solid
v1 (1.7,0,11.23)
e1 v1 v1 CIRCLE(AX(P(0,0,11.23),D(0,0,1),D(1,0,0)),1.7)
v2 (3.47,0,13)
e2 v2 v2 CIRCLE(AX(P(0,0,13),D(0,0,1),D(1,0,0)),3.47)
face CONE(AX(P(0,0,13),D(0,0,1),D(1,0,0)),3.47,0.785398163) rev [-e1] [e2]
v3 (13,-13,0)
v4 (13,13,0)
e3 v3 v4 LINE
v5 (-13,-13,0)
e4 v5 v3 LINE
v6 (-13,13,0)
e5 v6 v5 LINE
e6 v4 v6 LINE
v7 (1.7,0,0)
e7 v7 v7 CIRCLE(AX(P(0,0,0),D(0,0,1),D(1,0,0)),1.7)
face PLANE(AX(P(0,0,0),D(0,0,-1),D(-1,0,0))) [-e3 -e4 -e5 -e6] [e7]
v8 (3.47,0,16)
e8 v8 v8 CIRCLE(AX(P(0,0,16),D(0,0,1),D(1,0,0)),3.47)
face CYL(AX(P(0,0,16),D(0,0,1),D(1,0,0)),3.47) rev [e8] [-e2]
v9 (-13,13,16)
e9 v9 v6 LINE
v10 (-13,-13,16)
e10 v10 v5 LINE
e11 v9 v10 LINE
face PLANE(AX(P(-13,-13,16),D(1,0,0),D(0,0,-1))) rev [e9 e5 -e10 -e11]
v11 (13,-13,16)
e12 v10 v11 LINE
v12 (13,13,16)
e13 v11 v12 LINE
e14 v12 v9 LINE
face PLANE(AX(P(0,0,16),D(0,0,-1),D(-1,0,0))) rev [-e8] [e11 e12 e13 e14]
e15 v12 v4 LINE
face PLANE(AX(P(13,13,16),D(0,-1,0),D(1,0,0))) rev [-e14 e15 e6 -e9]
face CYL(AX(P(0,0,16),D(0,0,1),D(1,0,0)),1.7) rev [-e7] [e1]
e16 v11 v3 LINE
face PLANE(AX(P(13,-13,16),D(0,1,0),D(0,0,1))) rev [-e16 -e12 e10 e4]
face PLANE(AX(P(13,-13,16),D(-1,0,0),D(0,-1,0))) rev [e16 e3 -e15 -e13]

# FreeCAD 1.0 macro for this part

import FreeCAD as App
import Part
import Sketcher

V = App.Vector
Q = App.Units.Quantity


def add_polygon(sketch, points):
    """Adds a closed chain of lines whose ends are joined by coincident constraints."""
    first, n = sketch.GeometryCount, len(points)
    for a, b in zip(points, points[1:] + points[:1]):
        sketch.addGeometry(Part.LineSegment(App.Vector(*a, 0), App.Vector(*b, 0)), False)
    for i in range(n):
        sketch.addConstraint(Sketcher.Constraint("Coincident", first + i, 2, first + (i + 1) % n, 1))

doc = App.newDocument("Part")
params = doc.addObject("Spreadsheet::Sheet", "Params")
for row, (alias, value) in enumerate([
    ("sketch1_width", "26 mm"),
    ("pad1_length", "16 mm"),
    ("sketch2_height", "16 mm"),
    ("sketch2_height2", "3 mm"),
    ("sketch2_width", "1.7 mm"),
    ("sketch2_width2", "3.47 mm"),
    ("groove_angle", "360 deg"),
], start=1):
    params.set(f"A{row}", alias)
    params.set(f"B{row}", "=" + value)
    params.setAlias(f"B{row}", alias)

body = doc.addObject("PartDesign::Body", "Body")

# Sketch on XY plane
sketch1 = body.newObject("Sketcher::SketchObject", "Sketch")
sketch1.AttachmentSupport = (doc.getObject("XY_Plane"), [""])
sketch1.MapMode = "FlatFace"
add_polygon(sketch1, [(-13, -13), (13, -13), (13, 13), (-13, 13)])  # lines 0-3
sketch1.addConstraint([
    Sketcher.Constraint("Horizontal", 0),
    Sketcher.Constraint("Vertical", 1),
    Sketcher.Constraint("Horizontal", 2),
    Sketcher.Constraint("Vertical", 3),
    Sketcher.Constraint("Symmetric", 0, 2, 2, 2, -1, 1),
    Sketcher.Constraint("Equal", 2, 1),
    Sketcher.Constraint("DistanceX", 0, 1, 0, 2, Q("26 mm")),
])
sketch1.setExpression("Constraints[10]", "Params.sketch1_width")
pad1 = body.newObject("PartDesign::Pad", "Pad")
pad1.Profile = sketch1
pad1.setExpression("Length", "Params.pad1_length")

# Sketch on YZ plane
sketch2 = body.newObject("Sketcher::SketchObject", "Sketch001")
sketch2.AttachmentSupport = (doc.getObject("YZ_Plane"), [""])
sketch2.MapMode = "FlatFace"
add_polygon(sketch2, [(0, 0), (0, 16), (-3.5, 16), (-3.5, 13), (-1.7, 11.2), (-1.7, 0)])  # lines 0-5
sketch2.addConstraint([
    Sketcher.Constraint("Vertical", 0),
    Sketcher.Constraint("Horizontal", 1),
    Sketcher.Constraint("Vertical", 2),
    Sketcher.Constraint("Vertical", 4),
    Sketcher.Constraint("Horizontal", 5),
    Sketcher.Constraint("Coincident", 5, 2, -1, 1),
    Sketcher.Constraint("DistanceY", 0, 1, 0, 2, Q("16 mm")),
    Sketcher.Constraint("DistanceY", 2, 2, 2, 1, Q("3 mm")),
    Sketcher.Constraint("Angle", 3, Q("-45 deg")),
    Sketcher.Constraint("DistanceX", 5, 1, 5, 2, Q("1.7 mm")),
    Sketcher.Constraint("DistanceX", 1, 2, 1, 1, Q("3.47 mm")),
])
sketch2.setExpression("Constraints[12]", "Params.sketch2_height")
sketch2.setExpression("Constraints[13]", "Params.sketch2_height2")
sketch2.setExpression("Constraints[15]", "Params.sketch2_width")
sketch2.setExpression("Constraints[16]", "Params.sketch2_width2")
groove = body.newObject("PartDesign::Groove", "Groove")
groove.Profile = sketch2
groove.ReferenceAxis = (sketch2, ["V_Axis"])
groove.setExpression("Angle", "Params.groove_angle")

doc.recompute()
